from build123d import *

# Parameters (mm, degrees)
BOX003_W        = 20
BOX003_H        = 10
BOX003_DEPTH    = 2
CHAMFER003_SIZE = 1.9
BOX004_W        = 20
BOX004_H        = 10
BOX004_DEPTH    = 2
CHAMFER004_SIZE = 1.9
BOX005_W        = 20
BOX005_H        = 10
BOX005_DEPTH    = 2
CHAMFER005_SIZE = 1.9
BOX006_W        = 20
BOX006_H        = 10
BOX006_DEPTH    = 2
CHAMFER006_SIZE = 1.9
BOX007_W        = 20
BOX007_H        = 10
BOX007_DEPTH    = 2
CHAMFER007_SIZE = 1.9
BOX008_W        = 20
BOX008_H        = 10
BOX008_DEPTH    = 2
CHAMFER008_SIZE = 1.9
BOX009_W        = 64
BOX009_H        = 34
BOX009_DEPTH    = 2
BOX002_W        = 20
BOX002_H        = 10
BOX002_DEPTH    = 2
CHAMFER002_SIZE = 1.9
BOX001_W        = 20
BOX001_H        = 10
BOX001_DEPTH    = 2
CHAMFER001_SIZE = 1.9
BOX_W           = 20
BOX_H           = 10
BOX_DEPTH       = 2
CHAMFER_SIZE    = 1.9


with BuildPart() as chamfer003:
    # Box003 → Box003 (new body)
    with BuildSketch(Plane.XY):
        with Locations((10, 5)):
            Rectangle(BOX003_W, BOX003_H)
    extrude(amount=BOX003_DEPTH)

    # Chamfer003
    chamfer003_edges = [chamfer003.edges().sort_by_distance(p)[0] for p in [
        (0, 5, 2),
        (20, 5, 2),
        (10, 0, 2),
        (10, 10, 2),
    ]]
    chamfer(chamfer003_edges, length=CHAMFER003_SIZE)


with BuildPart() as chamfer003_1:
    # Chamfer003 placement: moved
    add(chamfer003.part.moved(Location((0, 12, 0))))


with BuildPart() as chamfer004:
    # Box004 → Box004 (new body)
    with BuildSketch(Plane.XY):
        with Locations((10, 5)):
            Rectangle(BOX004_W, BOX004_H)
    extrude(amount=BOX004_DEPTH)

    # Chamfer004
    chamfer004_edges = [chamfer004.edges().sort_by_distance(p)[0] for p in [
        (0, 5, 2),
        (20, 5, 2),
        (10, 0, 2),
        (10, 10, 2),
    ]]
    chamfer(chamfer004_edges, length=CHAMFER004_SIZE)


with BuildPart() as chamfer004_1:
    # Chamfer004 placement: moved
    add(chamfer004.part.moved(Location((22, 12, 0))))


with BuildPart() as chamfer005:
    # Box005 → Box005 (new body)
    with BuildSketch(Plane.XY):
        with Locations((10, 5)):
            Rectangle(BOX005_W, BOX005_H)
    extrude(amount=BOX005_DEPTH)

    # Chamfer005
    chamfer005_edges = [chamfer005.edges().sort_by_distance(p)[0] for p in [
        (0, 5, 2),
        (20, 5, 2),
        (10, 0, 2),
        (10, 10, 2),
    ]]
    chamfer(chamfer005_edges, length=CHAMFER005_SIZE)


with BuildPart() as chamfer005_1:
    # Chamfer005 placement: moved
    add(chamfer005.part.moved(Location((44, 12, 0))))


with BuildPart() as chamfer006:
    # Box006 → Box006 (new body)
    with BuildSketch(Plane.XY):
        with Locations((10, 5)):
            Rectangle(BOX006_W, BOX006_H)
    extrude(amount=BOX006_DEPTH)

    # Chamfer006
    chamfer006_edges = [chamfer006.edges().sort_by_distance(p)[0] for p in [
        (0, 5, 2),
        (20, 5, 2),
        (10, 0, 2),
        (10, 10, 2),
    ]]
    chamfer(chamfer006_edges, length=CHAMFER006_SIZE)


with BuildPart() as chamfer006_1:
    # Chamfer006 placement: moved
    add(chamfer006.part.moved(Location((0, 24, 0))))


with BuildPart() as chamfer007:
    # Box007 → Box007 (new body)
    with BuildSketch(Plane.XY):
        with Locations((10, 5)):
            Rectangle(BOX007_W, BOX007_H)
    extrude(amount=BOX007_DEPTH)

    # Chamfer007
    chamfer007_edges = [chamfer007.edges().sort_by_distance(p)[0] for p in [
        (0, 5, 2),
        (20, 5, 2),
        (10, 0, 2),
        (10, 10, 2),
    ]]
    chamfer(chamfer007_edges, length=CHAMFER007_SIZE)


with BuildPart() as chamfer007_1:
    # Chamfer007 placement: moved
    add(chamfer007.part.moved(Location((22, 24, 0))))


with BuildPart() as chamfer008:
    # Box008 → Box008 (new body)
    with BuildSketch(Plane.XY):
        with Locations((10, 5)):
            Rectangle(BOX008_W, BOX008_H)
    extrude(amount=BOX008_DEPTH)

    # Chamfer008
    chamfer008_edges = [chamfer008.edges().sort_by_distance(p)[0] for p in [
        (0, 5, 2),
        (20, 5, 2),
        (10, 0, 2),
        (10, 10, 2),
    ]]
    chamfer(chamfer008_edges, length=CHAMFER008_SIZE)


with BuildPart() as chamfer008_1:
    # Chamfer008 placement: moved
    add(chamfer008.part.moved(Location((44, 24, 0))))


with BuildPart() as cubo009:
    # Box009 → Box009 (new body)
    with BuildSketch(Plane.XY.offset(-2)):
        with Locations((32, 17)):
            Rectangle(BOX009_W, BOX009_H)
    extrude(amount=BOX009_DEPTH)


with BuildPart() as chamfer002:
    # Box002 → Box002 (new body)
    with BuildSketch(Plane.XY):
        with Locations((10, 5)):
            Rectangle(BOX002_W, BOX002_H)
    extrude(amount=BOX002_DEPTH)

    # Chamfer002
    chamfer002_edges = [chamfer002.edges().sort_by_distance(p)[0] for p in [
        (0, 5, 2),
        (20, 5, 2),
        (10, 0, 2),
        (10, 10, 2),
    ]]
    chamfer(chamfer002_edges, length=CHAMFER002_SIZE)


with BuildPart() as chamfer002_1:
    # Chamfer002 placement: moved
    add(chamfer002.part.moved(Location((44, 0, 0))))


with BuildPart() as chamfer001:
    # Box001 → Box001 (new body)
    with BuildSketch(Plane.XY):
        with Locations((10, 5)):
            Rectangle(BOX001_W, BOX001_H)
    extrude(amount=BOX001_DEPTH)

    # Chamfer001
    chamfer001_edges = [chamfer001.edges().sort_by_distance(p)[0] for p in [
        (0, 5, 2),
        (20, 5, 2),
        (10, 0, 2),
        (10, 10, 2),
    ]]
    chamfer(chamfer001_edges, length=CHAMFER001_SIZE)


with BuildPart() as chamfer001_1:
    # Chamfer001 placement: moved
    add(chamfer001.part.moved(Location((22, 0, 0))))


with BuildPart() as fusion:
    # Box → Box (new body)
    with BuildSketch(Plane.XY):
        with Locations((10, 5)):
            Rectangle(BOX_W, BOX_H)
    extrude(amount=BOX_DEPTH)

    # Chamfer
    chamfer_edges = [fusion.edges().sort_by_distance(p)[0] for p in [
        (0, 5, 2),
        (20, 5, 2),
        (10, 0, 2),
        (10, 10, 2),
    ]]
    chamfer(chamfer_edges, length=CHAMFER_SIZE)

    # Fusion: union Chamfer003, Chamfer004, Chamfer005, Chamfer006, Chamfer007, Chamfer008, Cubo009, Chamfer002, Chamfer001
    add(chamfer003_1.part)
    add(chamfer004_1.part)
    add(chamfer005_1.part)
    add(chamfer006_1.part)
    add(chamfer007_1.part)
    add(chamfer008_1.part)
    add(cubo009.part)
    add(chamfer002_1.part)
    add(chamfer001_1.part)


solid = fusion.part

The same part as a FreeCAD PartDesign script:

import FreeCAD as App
import Part
import Sketcher
from FreeCAD import Vector


def edges_at(feature, points):
    """Names of the edges that pass closest to the given points."""
    edges = feature.Shape.Edges
    near = lambda p: min(range(len(edges)), key=lambda i: edges[i].distToShape(Part.Vertex(*p))[0])
    return sorted({f"Edge{near(p) + 1}" for p in points})


def add_polygon(sketch, points):
    """Adds a closed chain of lines whose ends are joined by coincident constraints."""
    first, n = sketch.GeometryCount, len(points)
    for a, b in zip(points, points[1:] + points[:1]):
        sketch.addGeometry(Part.LineSegment(App.Vector(*a, 0), App.Vector(*b, 0)), False)
    for i in range(n):
        sketch.addConstraint(Sketcher.Constraint("Coincident", first + i, 2, first + (i + 1) % n, 1))

doc = App.newDocument("Part")
body = doc.addObject("PartDesign::Body", "Body")

# Sketch on XY plane
sketch1 = doc.addObject("Sketcher::SketchObject", "Sketch")
body.addObject(sketch1)
sketch1.AttachmentSupport = (doc.XY_Plane, [""])
sketch1.MapMode = "FlatFace"
add_polygon(sketch1, [(0, 10), (0, 0), (20, 0), (20, 10)])  # lines 0-3
sketch1.addConstraint([
    Sketcher.Constraint("Vertical", 0),
    Sketcher.Constraint("Horizontal", 1),
    Sketcher.Constraint("Vertical", 2),
    Sketcher.Constraint("Horizontal", 3),
    Sketcher.Constraint("Coincident", 0, 2, -1, 1),
    Sketcher.Constraint("DistanceX", 1, 1, 1, 2, 20.0),
    Sketcher.Constraint("DistanceY", 0, 2, 0, 1, 10.0),
])
pad1 = doc.addObject("PartDesign::Pad", "Pad")
body.addObject(pad1)
pad1.Profile = sketch1
pad1.Length = 2
doc.recompute()

chamfer = doc.addObject("PartDesign::Chamfer", "Chamfer")
body.addObject(chamfer)
chamfer.Base = (pad1, edges_at(pad1, [
    (0, 5, 2),
    (20, 5, 2),
    (10, 0, 2),
    (10, 10, 2),
]))
chamfer.Size = 1.9
body2 = doc.addObject("PartDesign::Body", "Body001")
doc.recompute()

body.Placement = App.Placement(Vector(0, 12, 0), App.Rotation(Vector(0, 0, 1), 0))
boolean = doc.addObject("PartDesign::Boolean", "Boolean")
body2.addObject(boolean)
boolean.Type = "Fuse"
boolean.addObjects([body])
body3 = doc.addObject("PartDesign::Body", "Body002")

# Sketch on XY plane
sketch2 = doc.addObject("Sketcher::SketchObject", "Sketch001")
body3.addObject(sketch2)
sketch2.AttachmentSupport = (doc.getObject("XY_Plane002"), [""])
sketch2.MapMode = "FlatFace"
add_polygon(sketch2, [(0, 10), (0, 0), (20, 0), (20, 10)])  # lines 0-3
sketch2.addConstraint([
    Sketcher.Constraint("Vertical", 0),
    Sketcher.Constraint("Horizontal", 1),
    Sketcher.Constraint("Vertical", 2),
    Sketcher.Constraint("Horizontal", 3),
    Sketcher.Constraint("Coincident", 0, 2, -1, 1),
    Sketcher.Constraint("DistanceX", 1, 1, 1, 2, 20.0),
    Sketcher.Constraint("DistanceY", 0, 2, 0, 1, 10.0),
])
pad2 = doc.addObject("PartDesign::Pad", "Pad001")
body3.addObject(pad2)
pad2.Profile = sketch2
pad2.Length = 2
doc.recompute()

chamfer2 = doc.addObject("PartDesign::Chamfer", "Chamfer001")
body3.addObject(chamfer2)
chamfer2.Base = (pad2, edges_at(pad2, [
    (0, 5, 2),
    (20, 5, 2),
    (10, 0, 2),
    (10, 10, 2),
]))
chamfer2.Size = 1.9
body4 = doc.addObject("PartDesign::Body", "Body003")
doc.recompute()

body3.Placement = App.Placement(Vector(22, 12, 0), App.Rotation(Vector(0, 0, 1), 0))
boolean2 = doc.addObject("PartDesign::Boolean", "Boolean001")
body4.addObject(boolean2)
boolean2.Type = "Fuse"
boolean2.addObjects([body3])
body5 = doc.addObject("PartDesign::Body", "Body004")

# Sketch on XY plane
sketch3 = doc.addObject("Sketcher::SketchObject", "Sketch002")
body5.addObject(sketch3)
sketch3.AttachmentSupport = (doc.getObject("XY_Plane004"), [""])
sketch3.MapMode = "FlatFace"
add_polygon(sketch3, [(0, 10), (0, 0), (20, 0), (20, 10)])  # lines 0-3
sketch3.addConstraint([
    Sketcher.Constraint("Vertical", 0),
    Sketcher.Constraint("Horizontal", 1),
    Sketcher.Constraint("Vertical", 2),
    Sketcher.Constraint("Horizontal", 3),
    Sketcher.Constraint("Coincident", 0, 2, -1, 1),
    Sketcher.Constraint("DistanceX", 1, 1, 1, 2, 20.0),
    Sketcher.Constraint("DistanceY", 0, 2, 0, 1, 10.0),
])
pad3 = doc.addObject("PartDesign::Pad", "Pad002")
body5.addObject(pad3)
pad3.Profile = sketch3
pad3.Length = 2
doc.recompute()

chamfer3 = doc.addObject("PartDesign::Chamfer", "Chamfer002")
body5.addObject(chamfer3)
chamfer3.Base = (pad3, edges_at(pad3, [
    (0, 5, 2),
    (20, 5, 2),
    (10, 0, 2),
    (10, 10, 2),
]))
chamfer3.Size = 1.9
body6 = doc.addObject("PartDesign::Body", "Body005")
doc.recompute()

body5.Placement = App.Placement(Vector(44, 12, 0), App.Rotation(Vector(0, 0, 1), 0))
boolean3 = doc.addObject("PartDesign::Boolean", "Boolean002")
body6.addObject(boolean3)
boolean3.Type = "Fuse"
boolean3.addObjects([body5])
body7 = doc.addObject("PartDesign::Body", "Body006")

# Sketch on XY plane
sketch4 = doc.addObject("Sketcher::SketchObject", "Sketch003")
body7.addObject(sketch4)
sketch4.AttachmentSupport = (doc.getObject("XY_Plane006"), [""])
sketch4.MapMode = "FlatFace"
add_polygon(sketch4, [(0, 10), (0, 0), (20, 0), (20, 10)])  # lines 0-3
sketch4.addConstraint([
    Sketcher.Constraint("Vertical", 0),
    Sketcher.Constraint("Horizontal", 1),
    Sketcher.Constraint("Vertical", 2),
    Sketcher.Constraint("Horizontal", 3),
    Sketcher.Constraint("Coincident", 0, 2, -1, 1),
    Sketcher.Constraint("DistanceX", 1, 1, 1, 2, 20.0),
    Sketcher.Constraint("DistanceY", 0, 2, 0, 1, 10.0),
])
pad4 = doc.addObject("PartDesign::Pad", "Pad003")
body7.addObject(pad4)
pad4.Profile = sketch4
pad4.Length = 2
doc.recompute()

chamfer4 = doc.addObject("PartDesign::Chamfer", "Chamfer003")
body7.addObject(chamfer4)
chamfer4.Base = (pad4, edges_at(pad4, [
    (0, 5, 2),
    (20, 5, 2),
    (10, 0, 2),
    (10, 10, 2),
]))
chamfer4.Size = 1.9
body8 = doc.addObject("PartDesign::Body", "Body007")
doc.recompute()

body7.Placement = App.Placement(Vector(0, 24, 0), App.Rotation(Vector(0, 0, 1), 0))
boolean4 = doc.addObject("PartDesign::Boolean", "Boolean003")
body8.addObject(boolean4)
boolean4.Type = "Fuse"
boolean4.addObjects([body7])
body9 = doc.addObject("PartDesign::Body", "Body008")

# Sketch on XY plane
sketch5 = doc.addObject("Sketcher::SketchObject", "Sketch004")
body9.addObject(sketch5)
sketch5.AttachmentSupport = (doc.getObject("XY_Plane008"), [""])
sketch5.MapMode = "FlatFace"
add_polygon(sketch5, [(0, 10), (0, 0), (20, 0), (20, 10)])  # lines 0-3
sketch5.addConstraint([
    Sketcher.Constraint("Vertical", 0),
    Sketcher.Constraint("Horizontal", 1),
    Sketcher.Constraint("Vertical", 2),
    Sketcher.Constraint("Horizontal", 3),
    Sketcher.Constraint("Coincident", 0, 2, -1, 1),
    Sketcher.Constraint("DistanceX", 1, 1, 1, 2, 20.0),
    Sketcher.Constraint("DistanceY", 0, 2, 0, 1, 10.0),
])
pad5 = doc.addObject("PartDesign::Pad", "Pad004")
body9.addObject(pad5)
pad5.Profile = sketch5
pad5.Length = 2
doc.recompute()

chamfer5 = doc.addObject("PartDesign::Chamfer", "Chamfer004")
body9.addObject(chamfer5)
chamfer5.Base = (pad5, edges_at(pad5, [
    (0, 5, 2),
    (20, 5, 2),
    (10, 0, 2),
    (10, 10, 2),
]))
chamfer5.Size = 1.9
body10 = doc.addObject("PartDesign::Body", "Body009")
doc.recompute()

body9.Placement = App.Placement(Vector(22, 24, 0), App.Rotation(Vector(0, 0, 1), 0))
boolean5 = doc.addObject("PartDesign::Boolean", "Boolean004")
body10.addObject(boolean5)
boolean5.Type = "Fuse"
boolean5.addObjects([body9])
body11 = doc.addObject("PartDesign::Body", "Body010")

# Sketch on XY plane
sketch6 = doc.addObject("Sketcher::SketchObject", "Sketch005")
body11.addObject(sketch6)
sketch6.AttachmentSupport = (doc.getObject("XY_Plane010"), [""])
sketch6.MapMode = "FlatFace"
add_polygon(sketch6, [(0, 10), (0, 0), (20, 0), (20, 10)])  # lines 0-3
sketch6.addConstraint([
    Sketcher.Constraint("Vertical", 0),
    Sketcher.Constraint("Horizontal", 1),
    Sketcher.Constraint("Vertical", 2),
    Sketcher.Constraint("Horizontal", 3),
    Sketcher.Constraint("Coincident", 0, 2, -1, 1),
    Sketcher.Constraint("DistanceX", 1, 1, 1, 2, 20.0),
    Sketcher.Constraint("DistanceY", 0, 2, 0, 1, 10.0),
])
pad6 = doc.addObject("PartDesign::Pad", "Pad005")
body11.addObject(pad6)
pad6.Profile = sketch6
pad6.Length = 2
doc.recompute()

chamfer6 = doc.addObject("PartDesign::Chamfer", "Chamfer005")
body11.addObject(chamfer6)
chamfer6.Base = (pad6, edges_at(pad6, [
    (0, 5, 2),
    (20, 5, 2),
    (10, 0, 2),
    (10, 10, 2),
]))
chamfer6.Size = 1.9
body12 = doc.addObject("PartDesign::Body", "Body011")
doc.recompute()

body11.Placement = App.Placement(Vector(44, 24, 0), App.Rotation(Vector(0, 0, 1), 0))
boolean6 = doc.addObject("PartDesign::Boolean", "Boolean005")
body12.addObject(boolean6)
boolean6.Type = "Fuse"
boolean6.addObjects([body11])
body13 = doc.addObject("PartDesign::Body", "Body012")

# Sketch on XY plane
sketch7 = doc.addObject("Sketcher::SketchObject", "Sketch006")
body13.addObject(sketch7)
sketch7.AttachmentSupport = (doc.getObject("XY_Plane012"), [""])
sketch7.MapMode = "FlatFace"
sketch7.AttachmentOffset = App.Placement(Vector(0, 0, -2), App.Rotation())
add_polygon(sketch7, [(0, 34), (0, 0), (64, 0), (64, 34)])  # lines 0-3
sketch7.addConstraint([
    Sketcher.Constraint("Vertical", 0),
    Sketcher.Constraint("Horizontal", 1),
    Sketcher.Constraint("Vertical", 2),
    Sketcher.Constraint("Horizontal", 3),
    Sketcher.Constraint("Coincident", 0, 2, -1, 1),
    Sketcher.Constraint("DistanceX", 1, 1, 1, 2, 64.0),
    Sketcher.Constraint("DistanceY", 0, 2, 0, 1, 34.0),
])
pad7 = doc.addObject("PartDesign::Pad", "Pad006")
body13.addObject(pad7)
pad7.Profile = sketch7
pad7.Length = 2
body14 = doc.addObject("PartDesign::Body", "Body013")

# Sketch on XY plane
sketch8 = doc.addObject("Sketcher::SketchObject", "Sketch007")
body14.addObject(sketch8)
sketch8.AttachmentSupport = (doc.getObject("XY_Plane013"), [""])
sketch8.MapMode = "FlatFace"
add_polygon(sketch8, [(0, 10), (0, 0), (20, 0), (20, 10)])  # lines 0-3
sketch8.addConstraint([
    Sketcher.Constraint("Vertical", 0),
    Sketcher.Constraint("Horizontal", 1),
    Sketcher.Constraint("Vertical", 2),
    Sketcher.Constraint("Horizontal", 3),
    Sketcher.Constraint("Coincident", 0, 2, -1, 1),
    Sketcher.Constraint("DistanceX", 1, 1, 1, 2, 20.0),
    Sketcher.Constraint("DistanceY", 0, 2, 0, 1, 10.0),
])
pad8 = doc.addObject("PartDesign::Pad", "Pad007")
body14.addObject(pad8)
pad8.Profile = sketch8
pad8.Length = 2
doc.recompute()

chamfer7 = doc.addObject("PartDesign::Chamfer", "Chamfer006")
body14.addObject(chamfer7)
chamfer7.Base = (pad8, edges_at(pad8, [
    (0, 5, 2),
    (20, 5, 2),
    (10, 0, 2),
    (10, 10, 2),
]))
chamfer7.Size = 1.9
body15 = doc.addObject("PartDesign::Body", "Body014")
doc.recompute()

body14.Placement = App.Placement(Vector(44, 0, 0), App.Rotation(Vector(0, 0, 1), 0))
boolean7 = doc.addObject("PartDesign::Boolean", "Boolean006")
body15.addObject(boolean7)
boolean7.Type = "Fuse"
boolean7.addObjects([body14])
body16 = doc.addObject("PartDesign::Body", "Body015")

# Sketch on XY plane
sketch9 = doc.addObject("Sketcher::SketchObject", "Sketch008")
body16.addObject(sketch9)
sketch9.AttachmentSupport = (doc.getObject("XY_Plane015"), [""])
sketch9.MapMode = "FlatFace"
add_polygon(sketch9, [(0, 10), (0, 0), (20, 0), (20, 10)])  # lines 0-3
sketch9.addConstraint([
    Sketcher.Constraint("Vertical", 0),
    Sketcher.Constraint("Horizontal", 1),
    Sketcher.Constraint("Vertical", 2),
    Sketcher.Constraint("Horizontal", 3),
    Sketcher.Constraint("Coincident", 0, 2, -1, 1),
    Sketcher.Constraint("DistanceX", 1, 1, 1, 2, 20.0),
    Sketcher.Constraint("DistanceY", 0, 2, 0, 1, 10.0),
])
pad9 = doc.addObject("PartDesign::Pad", "Pad008")
body16.addObject(pad9)
pad9.Profile = sketch9
pad9.Length = 2
doc.recompute()

chamfer8 = doc.addObject("PartDesign::Chamfer", "Chamfer007")
body16.addObject(chamfer8)
chamfer8.Base = (pad9, edges_at(pad9, [
    (0, 5, 2),
    (20, 5, 2),
    (10, 0, 2),
    (10, 10, 2),
]))
chamfer8.Size = 1.9
body17 = doc.addObject("PartDesign::Body", "Body016")
doc.recompute()

body16.Placement = App.Placement(Vector(22, 0, 0), App.Rotation(Vector(0, 0, 1), 0))
boolean8 = doc.addObject("PartDesign::Boolean", "Boolean007")
body17.addObject(boolean8)
boolean8.Type = "Fuse"
boolean8.addObjects([body16])
body18 = doc.addObject("PartDesign::Body", "Body017")
body18.AllowCompound = True

# Sketch on XY plane
sketch10 = doc.addObject("Sketcher::SketchObject", "Sketch009")
body18.addObject(sketch10)
sketch10.AttachmentSupport = (doc.getObject("XY_Plane017"), [""])
sketch10.MapMode = "FlatFace"
add_polygon(sketch10, [(0, 10), (0, 0), (20, 0), (20, 10)])  # lines 0-3
sketch10.addConstraint([
    Sketcher.Constraint("Vertical", 0),
    Sketcher.Constraint("Horizontal", 1),
    Sketcher.Constraint("Vertical", 2),
    Sketcher.Constraint("Horizontal", 3),
    Sketcher.Constraint("Coincident", 0, 2, -1, 1),
    Sketcher.Constraint("DistanceX", 1, 1, 1, 2, 20.0),
    Sketcher.Constraint("DistanceY", 0, 2, 0, 1, 10.0),
])
pad10 = doc.addObject("PartDesign::Pad", "Pad009")
body18.addObject(pad10)
pad10.Profile = sketch10
pad10.Length = 2
doc.recompute()

chamfer9 = doc.addObject("PartDesign::Chamfer", "Chamfer008")
body18.addObject(chamfer9)
chamfer9.Base = (pad10, edges_at(pad10, [
    (0, 5, 2),
    (20, 5, 2),
    (10, 0, 2),
    (10, 10, 2),
]))
chamfer9.Size = 1.9
doc.recompute()

boolean9 = doc.addObject("PartDesign::Boolean", "Boolean008")
body18.addObject(boolean9)
boolean9.Type = "Fuse"
boolean9.addObjects([body2])
doc.recompute()

boolean10 = doc.addObject("PartDesign::Boolean", "Boolean009")
body18.addObject(boolean10)
boolean10.Type = "Fuse"
boolean10.addObjects([body4])
doc.recompute()

boolean11 = doc.addObject("PartDesign::Boolean", "Boolean010")
body18.addObject(boolean11)
boolean11.Type = "Fuse"
boolean11.addObjects([body6])
doc.recompute()

boolean12 = doc.addObject("PartDesign::Boolean", "Boolean011")
body18.addObject(boolean12)
boolean12.Type = "Fuse"
boolean12.addObjects([body8])
doc.recompute()

boolean13 = doc.addObject("PartDesign::Boolean", "Boolean012")
body18.addObject(boolean13)
boolean13.Type = "Fuse"
boolean13.addObjects([body10])
doc.recompute()

boolean14 = doc.addObject("PartDesign::Boolean", "Boolean013")
body18.addObject(boolean14)
boolean14.Type = "Fuse"
boolean14.addObjects([body12])
doc.recompute()

boolean15 = doc.addObject("PartDesign::Boolean", "Boolean014")
body18.addObject(boolean15)
boolean15.Type = "Fuse"
boolean15.addObjects([body13])
doc.recompute()

boolean16 = doc.addObject("PartDesign::Boolean", "Boolean015")
body18.addObject(boolean16)
boolean16.Type = "Fuse"
boolean16.addObjects([body15])
doc.recompute()

boolean17 = doc.addObject("PartDesign::Boolean", "Boolean016")
body18.addObject(boolean17)
boolean17.Type = "Fuse"
boolean17.addObjects([body17])

doc.recompute()
